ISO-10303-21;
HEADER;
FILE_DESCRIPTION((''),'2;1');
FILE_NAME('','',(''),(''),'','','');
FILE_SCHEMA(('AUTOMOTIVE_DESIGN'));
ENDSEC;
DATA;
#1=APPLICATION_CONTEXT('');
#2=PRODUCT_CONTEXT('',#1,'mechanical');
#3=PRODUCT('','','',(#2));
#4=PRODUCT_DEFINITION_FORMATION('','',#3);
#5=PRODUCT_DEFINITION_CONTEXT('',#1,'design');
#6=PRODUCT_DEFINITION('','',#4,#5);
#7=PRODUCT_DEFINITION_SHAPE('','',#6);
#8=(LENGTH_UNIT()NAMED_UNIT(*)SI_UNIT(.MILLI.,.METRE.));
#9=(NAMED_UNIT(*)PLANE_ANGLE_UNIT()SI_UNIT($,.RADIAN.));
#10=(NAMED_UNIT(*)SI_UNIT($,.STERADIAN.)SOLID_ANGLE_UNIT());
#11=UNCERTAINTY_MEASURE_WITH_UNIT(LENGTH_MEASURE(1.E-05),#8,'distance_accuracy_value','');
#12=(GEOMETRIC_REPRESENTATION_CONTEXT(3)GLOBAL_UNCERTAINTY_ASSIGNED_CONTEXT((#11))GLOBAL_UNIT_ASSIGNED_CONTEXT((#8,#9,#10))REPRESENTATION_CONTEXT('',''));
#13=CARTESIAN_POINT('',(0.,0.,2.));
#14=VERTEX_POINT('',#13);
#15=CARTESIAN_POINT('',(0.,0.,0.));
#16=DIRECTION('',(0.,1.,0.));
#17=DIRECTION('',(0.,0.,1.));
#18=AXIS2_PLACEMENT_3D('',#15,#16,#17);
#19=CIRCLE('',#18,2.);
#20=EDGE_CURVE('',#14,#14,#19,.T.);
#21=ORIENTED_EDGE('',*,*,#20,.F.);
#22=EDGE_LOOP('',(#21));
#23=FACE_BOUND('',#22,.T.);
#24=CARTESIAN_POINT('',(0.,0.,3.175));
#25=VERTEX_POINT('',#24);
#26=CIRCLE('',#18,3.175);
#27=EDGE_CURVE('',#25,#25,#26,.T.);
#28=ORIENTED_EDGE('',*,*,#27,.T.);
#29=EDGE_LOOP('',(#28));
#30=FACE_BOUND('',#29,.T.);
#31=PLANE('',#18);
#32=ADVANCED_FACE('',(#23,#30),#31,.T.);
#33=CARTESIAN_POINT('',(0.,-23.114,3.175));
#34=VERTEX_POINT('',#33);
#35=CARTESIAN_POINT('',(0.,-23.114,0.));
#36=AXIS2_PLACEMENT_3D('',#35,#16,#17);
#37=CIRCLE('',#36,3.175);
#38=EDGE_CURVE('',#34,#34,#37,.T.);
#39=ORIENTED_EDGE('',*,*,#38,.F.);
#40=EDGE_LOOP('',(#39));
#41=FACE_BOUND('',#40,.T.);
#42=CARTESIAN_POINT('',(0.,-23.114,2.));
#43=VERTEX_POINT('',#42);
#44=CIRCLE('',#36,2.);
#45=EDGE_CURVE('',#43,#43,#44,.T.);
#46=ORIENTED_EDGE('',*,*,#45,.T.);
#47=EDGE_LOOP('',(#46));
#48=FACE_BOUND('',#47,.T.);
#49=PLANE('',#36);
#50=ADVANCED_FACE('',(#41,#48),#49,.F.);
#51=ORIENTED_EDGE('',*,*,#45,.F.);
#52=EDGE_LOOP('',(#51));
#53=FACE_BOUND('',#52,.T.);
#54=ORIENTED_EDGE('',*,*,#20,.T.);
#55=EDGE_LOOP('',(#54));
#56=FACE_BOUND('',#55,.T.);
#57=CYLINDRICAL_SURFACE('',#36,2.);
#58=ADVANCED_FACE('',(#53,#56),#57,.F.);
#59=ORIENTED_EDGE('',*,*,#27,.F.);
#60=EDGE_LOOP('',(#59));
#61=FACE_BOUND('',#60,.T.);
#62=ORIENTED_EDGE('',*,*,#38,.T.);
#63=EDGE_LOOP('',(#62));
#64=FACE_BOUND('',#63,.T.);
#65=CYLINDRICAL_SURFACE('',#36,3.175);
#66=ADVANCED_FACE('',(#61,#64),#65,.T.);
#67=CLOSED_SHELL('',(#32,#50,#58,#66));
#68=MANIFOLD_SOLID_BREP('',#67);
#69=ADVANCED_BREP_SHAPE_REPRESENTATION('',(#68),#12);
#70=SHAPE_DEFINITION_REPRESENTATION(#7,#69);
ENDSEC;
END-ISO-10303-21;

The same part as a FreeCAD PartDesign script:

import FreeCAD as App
import Part
import Sketcher

V = App.Vector
Q = App.Units.Quantity

doc = App.newDocument("Part")
params = doc.addObject("Spreadsheet::Sheet", "Params")
for row, (alias, value) in enumerate([
    ("sketch1_diameter", "0.25 in"),
    ("pad1_length", "0.91 in"),
], start=1):
    params.set(f"A{row}", alias)
    params.set(f"B{row}", "=" + value)
    params.setAlias(f"B{row}", alias)

body = doc.addObject("PartDesign::Body", "Body")

sketch1 = body.newObject("Sketcher::SketchObject", "Sketch")
sketch1.AttachmentSupport = (doc.getObject("XZ_Plane"), [""])
sketch1.MapMode = "FlatFace"
sketch1.addGeometry(Part.Circle(V(0, 0, 0), V(0, 0, 1), 3.2), False)
sketch1.addGeometry(Part.Circle(V(0, 0, 0), V(0, 0, 1), 2), False)
sketch1.addConstraint(Sketcher.Constraint("Coincident", 0, 3, -1, 1))
sketch1.addConstraint(Sketcher.Constraint("Coincident", 1, 3, -1, 1))
sketch1.addConstraint(Sketcher.Constraint("Diameter", 0, Q("0.25 in")))
sketch1.addConstraint(Sketcher.Constraint("Diameter", 1, 4.0))
sketch1.setExpression("Constraints[2]", "Params.sketch1_diameter")
pad1 = body.newObject("PartDesign::Pad", "Pad")
pad1.Profile = sketch1
pad1.setExpression("Length", "Params.pad1_length")

doc.recompute()
